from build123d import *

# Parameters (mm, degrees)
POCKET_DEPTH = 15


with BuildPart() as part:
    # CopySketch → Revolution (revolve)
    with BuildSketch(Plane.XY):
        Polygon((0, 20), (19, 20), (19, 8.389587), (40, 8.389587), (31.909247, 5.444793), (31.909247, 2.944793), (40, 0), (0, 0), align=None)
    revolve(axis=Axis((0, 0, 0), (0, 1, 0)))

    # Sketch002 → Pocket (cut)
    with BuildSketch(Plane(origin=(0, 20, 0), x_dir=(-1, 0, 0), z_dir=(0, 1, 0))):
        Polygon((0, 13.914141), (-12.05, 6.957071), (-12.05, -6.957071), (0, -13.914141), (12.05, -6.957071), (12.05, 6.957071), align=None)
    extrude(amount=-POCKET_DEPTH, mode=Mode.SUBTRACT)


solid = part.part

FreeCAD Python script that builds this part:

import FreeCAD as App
import Part
import Sketcher

V = App.Vector
Q = App.Units.Quantity


def add_polygon(sketch, points):
    """Adds a closed chain of lines whose ends are joined by coincident constraints."""
    first, n = sketch.GeometryCount, len(points)
    for a, b in zip(points, points[1:] + points[:1]):
        sketch.addGeometry(Part.LineSegment(App.Vector(*a, 0), App.Vector(*b, 0)), False)
    for i in range(n):
        sketch.addConstraint(Sketcher.Constraint("Coincident", first + i, 2, first + (i + 1) % n, 1))

doc = App.newDocument("Part")
body = doc.addObject("PartDesign::Body", "Body")

# Sketch on XY plane
sketch1 = body.newObject("Sketcher::SketchObject", "Sketch")
sketch1.AttachmentSupport = (doc.getObject("XY_Plane"), [""])
sketch1.MapMode = "FlatFace"
add_polygon(sketch1, [(19, 20), (0, 20), (0, 0), (40, 0), (31.909247, 2.944793), (31.909247, 5.444793), (40, 8.389587), (19, 8.389587)])  # lines 0-7
sketch1.addConstraint(Sketcher.Constraint("Horizontal", 0))
sketch1.addConstraint(Sketcher.Constraint("Vertical", 1))
sketch1.addConstraint(Sketcher.Constraint("Horizontal", 2))
sketch1.addConstraint(Sketcher.Constraint("Vertical", 4))
sketch1.addConstraint(Sketcher.Constraint("Horizontal", 6))
sketch1.addConstraint(Sketcher.Constraint("Vertical", 7))
sketch1.addConstraint(Sketcher.Constraint("Coincident", 1, 2, -1, 1))
sketch1.addConstraint(Sketcher.Constraint("Vertical", 2, 2, 5, 2))
sketch1.addConstraint(Sketcher.Constraint("Equal", 3, 5))
sketch1.addConstraint(Sketcher.Constraint("DistanceX", 0, 2, 0, 1, Q("19 mm")))
sketch1.addConstraint(Sketcher.Constraint("DistanceX", 2, 1, 2, 2, Q("40 mm")))
sketch1.addConstraint(Sketcher.Constraint("DistanceY", 1, 2, 1, 1, Q("20 mm")))
sketch1.addConstraint(Sketcher.Constraint("Angle", 3, Q("160.000002 deg")))
sketch1.addConstraint(Sketcher.Constraint("DistanceY", 4, 1, 4, 2, Q("2.5 mm")))
sketch1.addConstraint(Sketcher.Constraint("Distance", 3, Q("8.609999 mm")))
revolution = body.newObject("PartDesign::Revolution", "Revolution")
revolution.Profile = sketch1
revolution.ReferenceAxis = (sketch1, ["V_Axis"])
revolution.Angle = 360

# Sketch on XZ plane
sketch2 = body.newObject("Sketcher::SketchObject", "Sketch001")
sketch2.AttachmentSupport = (doc.getObject("XZ_Plane"), [""])
sketch2.MapMode = "FlatFace"
sketch2.AttachmentOffset = App.Placement(V(0, 0, -20), App.Rotation())
add_polygon(sketch2, [(0, 13.914141), (12.05, 6.957071), (12.05, -6.957071), (0, -13.914141), (-12.05, -6.957071), (-12.05, 6.957071)])  # lines 0-5
sketch2.addConstraint(Sketcher.Constraint("Vertical", 1))
sketch2.addConstraint(Sketcher.Constraint("Vertical", 4))
sketch2.addConstraint(Sketcher.Constraint("Symmetric", 0, 2, 3, 2, -1, 1))
sketch2.addConstraint(Sketcher.Constraint("Symmetric", 2, 2, 5, 2, -1, 1))
sketch2.addConstraint(Sketcher.Constraint("PointOnObject", 2, 2, -2))
sketch2.addConstraint(Sketcher.Constraint("Parallel", 2, 5))
sketch2.addConstraint(Sketcher.Constraint("Horizontal", 1, 2, 3, 2))
sketch2.addConstraint(Sketcher.Constraint("Angle", 0, Q("-29.999997 deg")))
sketch2.addConstraint(Sketcher.Constraint("DistanceX", 3, 2, 1, 2, Q("24.1 mm")))
sketch2.addConstraint(Sketcher.Constraint("DistanceY", 1, 2, 1, 1, Q("13.914142 mm")))
pocket1 = body.newObject("PartDesign::Pocket", "Pocket")
pocket1.Profile = sketch2
pocket1.Length = 15
pocket1.Reversed = True

doc.recompute()
